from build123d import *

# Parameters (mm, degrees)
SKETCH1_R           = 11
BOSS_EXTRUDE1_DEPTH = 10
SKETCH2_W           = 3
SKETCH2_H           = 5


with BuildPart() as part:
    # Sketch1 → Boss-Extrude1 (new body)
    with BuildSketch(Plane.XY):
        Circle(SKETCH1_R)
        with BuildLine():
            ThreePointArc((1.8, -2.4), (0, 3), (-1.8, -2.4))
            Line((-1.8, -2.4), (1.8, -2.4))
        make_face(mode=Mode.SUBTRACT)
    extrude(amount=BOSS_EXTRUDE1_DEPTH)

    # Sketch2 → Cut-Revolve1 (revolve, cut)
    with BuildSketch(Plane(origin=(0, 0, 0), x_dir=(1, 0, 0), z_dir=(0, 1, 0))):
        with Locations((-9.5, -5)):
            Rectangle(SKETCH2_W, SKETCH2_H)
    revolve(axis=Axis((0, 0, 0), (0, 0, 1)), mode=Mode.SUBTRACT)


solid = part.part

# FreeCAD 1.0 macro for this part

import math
import FreeCAD as App
import Part
import Sketcher

doc = App.newDocument("Part")
body = doc.addObject("PartDesign::Body", "Body")

# Sketch on XY plane
sketch1 = doc.addObject("Sketcher::SketchObject", "Sketch")
body.addObject(sketch1)
sketch1.AttachmentSupport = (doc.XY_Plane, [""])
sketch1.MapMode = "FlatFace"
sketch1.addGeometry(Part.Circle(App.Vector(0, 0, 0), App.Vector(0, 0, 1), 11), False)
sketch1.addGeometry(Part.ArcOfCircle(Part.Circle(App.Vector(0, 0, 0), App.Vector(0, 0, 1), 3), math.radians(-53), math.radians(233)), False)
sketch1.addGeometry(Part.LineSegment(App.Vector(1.8, -2.4, 0), App.Vector(-1.8, -2.4, 0)), False)
sketch1.addConstraint(Sketcher.Constraint("Coincident", 1, 1, 2, 1))
sketch1.addConstraint(Sketcher.Constraint("Coincident", 2, 2, 1, 2))
sketch1.addConstraint(Sketcher.Constraint("Horizontal", 2))
sketch1.addConstraint(Sketcher.Constraint("Coincident", 0, 3, -1, 1))
sketch1.addConstraint(Sketcher.Constraint("Coincident", 1, 3, -1, 1))
sketch1.addConstraint(Sketcher.Constraint("Diameter", 0, 22.0))
sketch1.addConstraint(Sketcher.Constraint("Radius", 1, 3.0))
sketch1.addConstraint(Sketcher.Constraint("DistanceX", 2, 2, 2, 1, 3.6))
pad1 = doc.addObject("PartDesign::Pad", "Pad")
body.addObject(pad1)
pad1.Profile = sketch1
pad1.Length = 10

# Sketch on XZ plane
sketch2 = doc.addObject("Sketcher::SketchObject", "Sketch001")
body.addObject(sketch2)
sketch2.AttachmentSupport = (doc.XZ_Plane, [""])
sketch2.MapMode = "FlatFace"
sketch2.addGeometry(Part.LineSegment(App.Vector(-11, 2.5, 0), App.Vector(-11, 7.5, 0)), False)
sketch2.addGeometry(Part.LineSegment(App.Vector(-11, 7.5, 0), App.Vector(-8, 7.5, 0)), False)
sketch2.addGeometry(Part.LineSegment(App.Vector(-8, 7.5, 0), App.Vector(-8, 2.5, 0)), False)
sketch2.addGeometry(Part.LineSegment(App.Vector(-8, 2.5, 0), App.Vector(-11, 2.5, 0)), False)
sketch2.addConstraint(Sketcher.Constraint("Coincident", 0, 2, 1, 1))
sketch2.addConstraint(Sketcher.Constraint("Coincident", 1, 2, 2, 1))
sketch2.addConstraint(Sketcher.Constraint("Coincident", 2, 2, 3, 1))
sketch2.addConstraint(Sketcher.Constraint("Coincident", 3, 2, 0, 1))
sketch2.addConstraint(Sketcher.Constraint("Vertical", 0))
sketch2.addConstraint(Sketcher.Constraint("Horizontal", 1))
sketch2.addConstraint(Sketcher.Constraint("Vertical", 2))
sketch2.addConstraint(Sketcher.Constraint("Horizontal", 3))
sketch2.addConstraint(Sketcher.Constraint("DistanceX", 1, 1, 1, 2, 3.0))
sketch2.addConstraint(Sketcher.Constraint("DistanceY", 0, 1, 0, 2, 5.0))
sketch2.addConstraint(Sketcher.Constraint("DistanceX", 0, 2, -1, 1, 11.0))
sketch2.addConstraint(Sketcher.Constraint("DistanceY", -1, 1, 0, 2, 7.5))
groove = doc.addObject("PartDesign::Groove", "Groove")
body.addObject(groove)
groove.Profile = sketch2
groove.ReferenceAxis = (sketch2, ["V_Axis"])
groove.Angle = 360

doc.recompute()
